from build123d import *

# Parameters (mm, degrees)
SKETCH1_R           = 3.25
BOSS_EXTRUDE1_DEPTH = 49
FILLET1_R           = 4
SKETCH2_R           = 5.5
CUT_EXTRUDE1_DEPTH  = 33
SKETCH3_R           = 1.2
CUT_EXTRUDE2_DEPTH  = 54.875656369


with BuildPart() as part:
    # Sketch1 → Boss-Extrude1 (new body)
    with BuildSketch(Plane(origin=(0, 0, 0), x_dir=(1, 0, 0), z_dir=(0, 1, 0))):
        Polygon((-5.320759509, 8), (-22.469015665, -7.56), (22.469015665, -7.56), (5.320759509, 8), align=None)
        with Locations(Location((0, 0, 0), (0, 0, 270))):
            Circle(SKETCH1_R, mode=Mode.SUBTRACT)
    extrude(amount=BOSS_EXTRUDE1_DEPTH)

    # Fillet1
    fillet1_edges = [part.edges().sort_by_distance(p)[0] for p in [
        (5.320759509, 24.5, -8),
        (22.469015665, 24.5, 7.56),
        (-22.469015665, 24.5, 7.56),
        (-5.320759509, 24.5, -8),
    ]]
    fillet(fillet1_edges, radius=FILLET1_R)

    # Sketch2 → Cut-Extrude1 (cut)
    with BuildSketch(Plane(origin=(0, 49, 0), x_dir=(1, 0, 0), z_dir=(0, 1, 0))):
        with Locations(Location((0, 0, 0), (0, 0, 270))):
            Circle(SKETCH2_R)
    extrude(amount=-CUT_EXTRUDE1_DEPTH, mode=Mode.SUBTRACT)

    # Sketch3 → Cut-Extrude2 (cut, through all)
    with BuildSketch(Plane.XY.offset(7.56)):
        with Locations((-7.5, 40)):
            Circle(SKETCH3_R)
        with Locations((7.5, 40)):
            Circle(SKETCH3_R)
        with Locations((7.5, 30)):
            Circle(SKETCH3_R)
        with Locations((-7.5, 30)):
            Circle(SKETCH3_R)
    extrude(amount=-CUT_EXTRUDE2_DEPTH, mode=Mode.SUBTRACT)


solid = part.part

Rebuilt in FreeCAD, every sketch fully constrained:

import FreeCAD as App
import Part
import Sketcher
Q = App.Units.Quantity


def edges_at(feature, points):
    """Names of the edges that pass closest to the given points."""
    edges = feature.Shape.Edges
    near = lambda p: min(range(len(edges)), key=lambda i: edges[i].distToShape(Part.Vertex(*p))[0])
    return sorted({f"Edge{near(p) + 1}" for p in points})


def add_polygon(sketch, points):
    """Adds a closed chain of lines whose ends are joined by coincident constraints."""
    first, n = sketch.GeometryCount, len(points)
    for a, b in zip(points, points[1:] + points[:1]):
        sketch.addGeometry(Part.LineSegment(App.Vector(*a, 0), App.Vector(*b, 0)), False)
    for i in range(n):
        sketch.addConstraint(Sketcher.Constraint("Coincident", first + i, 2, first + (i + 1) % n, 1))

doc = App.newDocument("Part")
body = doc.addObject("PartDesign::Body", "Body")

# Sketch on XZ plane
sketch1 = body.newObject("Sketcher::SketchObject", "Sketch")
sketch1.AttachmentSupport = (doc.getObject("XZ_Plane"), [""])
sketch1.MapMode = "FlatFace"
add_polygon(sketch1, [(-5.32076, -8), (-22.469016, 7.56), (22.469016, 7.56), (5.32076, -8)])  # lines 0-3
sketch1.addGeometry(Part.Circle(App.Vector(0, 0, 0), App.Vector(0, 0, 1), 3.25), False)  # 4
sketch1.addConstraint([
    Sketcher.Constraint("Horizontal", 1),
    Sketcher.Constraint("Horizontal", 3),
    Sketcher.Constraint("Coincident", 4, 3, -1, 1),
    Sketcher.Constraint("Equal", 0, 2),
    Sketcher.Constraint("Diameter", 4, 6.5),
    Sketcher.Constraint("DistanceY", 2, 2, -1, 1, 8.0),
    Sketcher.Constraint("Angle", 0, Q("137.78 deg")),
    Sketcher.Constraint("DistanceY", -1, 1, 0, 2, 7.56),
    Sketcher.Constraint("DistanceX", 1, 1, 1, 2, 44.938031),
    Sketcher.Constraint("DistanceX", -1, 1, 2, 2, 5.32076),
])
pad1 = body.newObject("PartDesign::Pad", "Pad")
pad1.Profile = sketch1
pad1.Length = 49
pad1.Reversed = True
doc.recompute()

fillet = body.newObject("PartDesign::Fillet", "Fillet")
fillet.Base = (pad1, edges_at(pad1, [
    (5.321, 24.5, -8),
    (22.469, 24.5, 7.56),
    (-22.469, 24.5, 7.56),
    (-5.321, 24.5, -8),
]))
fillet.Radius = 4

# Sketch on XZ plane
sketch2 = body.newObject("Sketcher::SketchObject", "Sketch001")
sketch2.AttachmentSupport = (doc.getObject("XZ_Plane"), [""])
sketch2.MapMode = "FlatFace"
sketch2.AttachmentOffset = App.Placement(App.Vector(0, 0, -49), App.Rotation())
sketch2.addGeometry(Part.Circle(App.Vector(0, 0, 0), App.Vector(0, 0, 1), 5.5), False)
sketch2.addConstraint([
    Sketcher.Constraint("Coincident", 0, 3, -1, 1),
    Sketcher.Constraint("Diameter", 0, 11.0),
])
pocket1 = body.newObject("PartDesign::Pocket", "Pocket")
pocket1.Profile = sketch2
pocket1.Length = 33
pocket1.Reversed = True

# Sketch on XY plane
sketch3 = body.newObject("Sketcher::SketchObject", "Sketch002")
sketch3.AttachmentSupport = (doc.getObject("XY_Plane"), [""])
sketch3.MapMode = "FlatFace"
sketch3.AttachmentOffset = App.Placement(App.Vector(0, 0, 7.56), App.Rotation())
sketch3.addGeometry([
    Part.Circle(App.Vector(-7.5, 40, 0), App.Vector(0, 0, 1), 1.2),
    Part.Circle(App.Vector(7.5, 40, 0), App.Vector(0, 0, 1), 1.2),
    Part.Circle(App.Vector(7.5, 30, 0), App.Vector(0, 0, 1), 1.2),
    Part.Circle(App.Vector(-7.5, 30, 0), App.Vector(0, 0, 1), 1.2),
], False)
sketch3.addConstraint([
    Sketcher.Constraint("Equal", 0, 1),
    Sketcher.Constraint("Equal", 1, 2),
    Sketcher.Constraint("Equal", 2, 3),
    Sketcher.Constraint("Symmetric", 0, 3, 1, 3, -2),
    Sketcher.Constraint("Symmetric", 2, 3, 3, 3, -2),
    Sketcher.Constraint("Vertical", 1, 3, 2, 3),
    Sketcher.Constraint("Diameter", 0, 2.4),
    Sketcher.Constraint("DistanceY", -1, 1, 0, 3, 40.0),
    Sketcher.Constraint("DistanceY", -1, 1, 2, 3, 30.0),
    Sketcher.Constraint("DistanceX", 0, 3, 1, 3, 15.0),
])
pocket2 = body.newObject("PartDesign::Pocket", "Pocket001")
pocket2.Profile = sketch3
pocket2.Type = "ThroughAll"

doc.recompute()
